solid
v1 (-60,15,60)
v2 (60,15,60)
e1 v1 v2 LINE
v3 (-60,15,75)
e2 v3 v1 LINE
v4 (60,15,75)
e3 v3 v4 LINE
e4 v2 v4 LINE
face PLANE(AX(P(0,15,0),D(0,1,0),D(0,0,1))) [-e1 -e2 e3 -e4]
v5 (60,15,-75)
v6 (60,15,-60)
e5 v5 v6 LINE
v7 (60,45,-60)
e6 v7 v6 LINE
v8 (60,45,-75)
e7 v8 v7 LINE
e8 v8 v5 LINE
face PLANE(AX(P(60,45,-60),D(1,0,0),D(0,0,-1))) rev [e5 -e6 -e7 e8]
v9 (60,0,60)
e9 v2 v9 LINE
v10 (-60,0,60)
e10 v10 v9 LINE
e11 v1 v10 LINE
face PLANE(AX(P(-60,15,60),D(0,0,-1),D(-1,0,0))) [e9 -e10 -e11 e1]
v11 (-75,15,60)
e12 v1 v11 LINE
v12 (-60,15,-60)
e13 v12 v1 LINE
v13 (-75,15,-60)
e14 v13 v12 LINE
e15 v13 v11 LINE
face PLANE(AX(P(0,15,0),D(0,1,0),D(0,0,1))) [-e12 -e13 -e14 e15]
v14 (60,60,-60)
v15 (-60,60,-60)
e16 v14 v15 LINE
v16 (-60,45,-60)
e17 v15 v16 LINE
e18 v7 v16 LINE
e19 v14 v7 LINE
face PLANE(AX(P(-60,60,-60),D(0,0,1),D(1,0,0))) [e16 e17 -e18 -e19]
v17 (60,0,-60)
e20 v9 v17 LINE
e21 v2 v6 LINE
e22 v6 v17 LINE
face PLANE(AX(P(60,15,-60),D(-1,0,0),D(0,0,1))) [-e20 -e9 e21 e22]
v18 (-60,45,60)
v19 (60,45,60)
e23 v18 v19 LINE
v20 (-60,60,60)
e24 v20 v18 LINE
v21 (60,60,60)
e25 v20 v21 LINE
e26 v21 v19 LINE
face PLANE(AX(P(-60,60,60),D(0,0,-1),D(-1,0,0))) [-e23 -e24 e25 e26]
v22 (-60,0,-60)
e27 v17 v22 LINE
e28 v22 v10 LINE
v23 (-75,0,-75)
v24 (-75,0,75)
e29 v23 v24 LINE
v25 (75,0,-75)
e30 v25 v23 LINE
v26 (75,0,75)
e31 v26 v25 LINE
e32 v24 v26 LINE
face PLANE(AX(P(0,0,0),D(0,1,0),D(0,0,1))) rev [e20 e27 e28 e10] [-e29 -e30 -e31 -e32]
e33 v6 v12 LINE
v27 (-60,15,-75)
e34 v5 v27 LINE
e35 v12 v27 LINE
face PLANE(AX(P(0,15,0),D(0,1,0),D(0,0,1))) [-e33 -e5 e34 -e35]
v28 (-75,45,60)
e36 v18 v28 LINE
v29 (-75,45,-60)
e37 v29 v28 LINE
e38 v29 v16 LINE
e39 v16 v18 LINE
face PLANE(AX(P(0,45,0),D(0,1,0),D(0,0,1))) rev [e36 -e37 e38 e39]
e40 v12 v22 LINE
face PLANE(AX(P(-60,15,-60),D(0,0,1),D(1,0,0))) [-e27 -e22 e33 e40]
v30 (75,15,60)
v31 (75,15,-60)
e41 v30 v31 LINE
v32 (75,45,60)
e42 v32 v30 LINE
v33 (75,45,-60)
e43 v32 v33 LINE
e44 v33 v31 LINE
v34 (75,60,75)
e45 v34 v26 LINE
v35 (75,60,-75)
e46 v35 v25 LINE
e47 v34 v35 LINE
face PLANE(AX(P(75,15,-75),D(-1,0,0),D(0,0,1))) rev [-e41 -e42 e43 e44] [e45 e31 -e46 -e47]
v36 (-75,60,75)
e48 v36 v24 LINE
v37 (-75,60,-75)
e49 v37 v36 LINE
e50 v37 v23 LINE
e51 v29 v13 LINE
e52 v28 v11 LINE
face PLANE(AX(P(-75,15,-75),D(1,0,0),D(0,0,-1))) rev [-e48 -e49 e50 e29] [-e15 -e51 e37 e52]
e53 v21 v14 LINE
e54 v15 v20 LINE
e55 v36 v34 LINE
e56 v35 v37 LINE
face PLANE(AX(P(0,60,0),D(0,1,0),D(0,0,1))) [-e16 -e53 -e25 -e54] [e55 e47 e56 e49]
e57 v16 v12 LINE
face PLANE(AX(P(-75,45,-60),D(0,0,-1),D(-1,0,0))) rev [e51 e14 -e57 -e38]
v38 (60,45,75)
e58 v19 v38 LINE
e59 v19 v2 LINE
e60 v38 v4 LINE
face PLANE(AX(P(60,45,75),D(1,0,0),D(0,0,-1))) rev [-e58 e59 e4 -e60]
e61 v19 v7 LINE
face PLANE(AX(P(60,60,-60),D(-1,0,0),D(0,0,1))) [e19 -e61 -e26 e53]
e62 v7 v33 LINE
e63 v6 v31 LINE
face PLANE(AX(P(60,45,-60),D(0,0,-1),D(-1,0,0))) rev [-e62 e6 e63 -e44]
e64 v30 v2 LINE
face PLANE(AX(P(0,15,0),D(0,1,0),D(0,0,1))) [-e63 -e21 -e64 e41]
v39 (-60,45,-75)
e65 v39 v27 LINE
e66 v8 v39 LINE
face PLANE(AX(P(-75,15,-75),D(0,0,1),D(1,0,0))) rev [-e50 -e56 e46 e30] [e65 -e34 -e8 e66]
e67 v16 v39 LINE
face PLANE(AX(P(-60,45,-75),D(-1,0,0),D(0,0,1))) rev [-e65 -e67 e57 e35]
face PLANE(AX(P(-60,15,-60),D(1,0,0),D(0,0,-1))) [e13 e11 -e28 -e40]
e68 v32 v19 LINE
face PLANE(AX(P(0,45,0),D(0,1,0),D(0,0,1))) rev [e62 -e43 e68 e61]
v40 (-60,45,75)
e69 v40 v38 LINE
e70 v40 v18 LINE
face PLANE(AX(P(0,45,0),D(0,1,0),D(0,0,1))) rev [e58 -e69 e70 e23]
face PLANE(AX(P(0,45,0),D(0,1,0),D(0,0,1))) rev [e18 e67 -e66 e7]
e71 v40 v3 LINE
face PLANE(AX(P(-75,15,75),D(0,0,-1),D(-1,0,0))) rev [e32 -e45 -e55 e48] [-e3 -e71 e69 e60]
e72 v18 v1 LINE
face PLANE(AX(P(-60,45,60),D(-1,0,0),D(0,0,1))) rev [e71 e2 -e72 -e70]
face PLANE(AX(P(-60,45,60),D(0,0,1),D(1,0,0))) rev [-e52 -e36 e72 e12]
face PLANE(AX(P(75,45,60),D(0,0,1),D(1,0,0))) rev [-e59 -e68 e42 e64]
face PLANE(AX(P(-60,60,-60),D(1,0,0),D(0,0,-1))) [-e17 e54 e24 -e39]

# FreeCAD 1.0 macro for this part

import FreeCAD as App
import Part
import Sketcher

V = App.Vector
Q = App.Units.Quantity


def add_polygon(sketch, points):
    """Adds a closed chain of lines whose ends are joined by coincident constraints."""
    first, n = sketch.GeometryCount, len(points)
    for a, b in zip(points, points[1:] + points[:1]):
        sketch.addGeometry(Part.LineSegment(App.Vector(*a, 0), App.Vector(*b, 0)), False)
    for i in range(n):
        sketch.addConstraint(Sketcher.Constraint("Coincident", first + i, 2, first + (i + 1) % n, 1))

doc = App.newDocument("Part")
body = doc.addObject("PartDesign::Body", "Body")

# Sketch on XZ plane
sketch1 = doc.addObject("Sketcher::SketchObject", "Sketch")
body.addObject(sketch1)
sketch1.AttachmentSupport = (doc.XZ_Plane, [""])
sketch1.MapMode = "FlatFace"
add_polygon(sketch1, [(-75, -75), (-75, 75), (75, 75), (75, -75)])  # lines 0-3
add_polygon(sketch1, [(60, 60), (-60, 60), (-60, -60), (60, -60)])  # lines 4-7
sketch1.addConstraint(Sketcher.Constraint("Vertical", 0))
sketch1.addConstraint(Sketcher.Constraint("Horizontal", 1))
sketch1.addConstraint(Sketcher.Constraint("Vertical", 2))
sketch1.addConstraint(Sketcher.Constraint("Horizontal", 3))
sketch1.addConstraint(Sketcher.Constraint("Horizontal", 4))
sketch1.addConstraint(Sketcher.Constraint("Vertical", 5))
sketch1.addConstraint(Sketcher.Constraint("Horizontal", 6))
sketch1.addConstraint(Sketcher.Constraint("Vertical", 7))
sketch1.addConstraint(Sketcher.Constraint("Symmetric", 0, 2, 2, 2, -1, 1))
sketch1.addConstraint(Sketcher.Constraint("Symmetric", 4, 2, 6, 2, -1, 1))
sketch1.addConstraint(Sketcher.Constraint("Equal", 3, 0))
sketch1.addConstraint(Sketcher.Constraint("Equal", 6, 5))
sketch1.addConstraint(Sketcher.Constraint("DistanceX", 1, 1, 1, 2, Q("150 mm")))
sketch1.addConstraint(Sketcher.Constraint("DistanceX", 4, 2, 4, 1, Q("120 mm")))
pad1 = doc.addObject("PartDesign::Pad", "Pad")
body.addObject(pad1)
pad1.Profile = sketch1
pad1.Length = 15
pad1.Reversed = True

# Sketch on XZ plane
sketch2 = doc.addObject("Sketcher::SketchObject", "Sketch001")
body.addObject(sketch2)
sketch2.AttachmentSupport = (doc.XZ_Plane, [""])
sketch2.MapMode = "FlatFace"
sketch2.AttachmentOffset = App.Placement(V(0, 0, -15), App.Rotation())
add_polygon(sketch2, [(-75, -75), (-75, -60), (-60, -60), (-60, -75)])  # lines 0-3
add_polygon(sketch2, [(60, -75), (60, -60), (75, -60), (75, -75)])  # lines 4-7
add_polygon(sketch2, [(60, 60), (60, 75), (75, 75), (75, 60)])  # lines 8-11
add_polygon(sketch2, [(-75, 60), (-75, 75), (-60, 75), (-60, 60)])  # lines 12-15
sketch2.addConstraint(Sketcher.Constraint("Vertical", 0))
sketch2.addConstraint(Sketcher.Constraint("Horizontal", 1))
sketch2.addConstraint(Sketcher.Constraint("Vertical", 2))
sketch2.addConstraint(Sketcher.Constraint("Horizontal", 3))
sketch2.addConstraint(Sketcher.Constraint("Vertical", 4))
sketch2.addConstraint(Sketcher.Constraint("Horizontal", 5))
sketch2.addConstraint(Sketcher.Constraint("Vertical", 6))
sketch2.addConstraint(Sketcher.Constraint("Horizontal", 7))
sketch2.addConstraint(Sketcher.Constraint("Vertical", 8))
sketch2.addConstraint(Sketcher.Constraint("Horizontal", 9))
sketch2.addConstraint(Sketcher.Constraint("Vertical", 10))
sketch2.addConstraint(Sketcher.Constraint("Horizontal", 11))
sketch2.addConstraint(Sketcher.Constraint("Vertical", 12))
sketch2.addConstraint(Sketcher.Constraint("Horizontal", 13))
sketch2.addConstraint(Sketcher.Constraint("Vertical", 14))
sketch2.addConstraint(Sketcher.Constraint("Horizontal", 15))
sketch2.addConstraint(Sketcher.Constraint("Symmetric", 2, 2, 8, 2, -1, 1))
sketch2.addConstraint(Sketcher.Constraint("Symmetric", 0, 2, 10, 2, -1, 1))
sketch2.addConstraint(Sketcher.Constraint("Symmetric", 6, 2, 12, 2, -1, 1))
sketch2.addConstraint(Sketcher.Constraint("Symmetric", 4, 2, 14, 2, -1, 1))
sketch2.addConstraint(Sketcher.Constraint("Symmetric", 1, 2, 4, 2, -2))
sketch2.addConstraint(Sketcher.Constraint("Symmetric", 3, 2, 6, 2, -2))
sketch2.addConstraint(Sketcher.Constraint("Equal", 15, 0))
sketch2.addConstraint(Sketcher.Constraint("DistanceX", 1, 1, 1, 2, Q("15 mm")))
sketch2.addConstraint(Sketcher.Constraint("DistanceX", 0, 2, -1, 1, Q("75 mm")))
sketch2.addConstraint(Sketcher.Constraint("DistanceY", 0, 2, -1, 1, Q("60 mm")))
pad2 = doc.addObject("PartDesign::Pad", "Pad001")
body.addObject(pad2)
pad2.Profile = sketch2
pad2.Length = 30
pad2.Reversed = True

# Sketch on XZ plane
sketch3 = doc.addObject("Sketcher::SketchObject", "Sketch002")
body.addObject(sketch3)
sketch3.AttachmentSupport = (doc.XZ_Plane, [""])
sketch3.MapMode = "FlatFace"
sketch3.AttachmentOffset = App.Placement(V(0, 0, -45), App.Rotation())
add_polygon(sketch3, [(-75, -75), (-75, 75), (75, 75), (75, -75)])  # lines 0-3
add_polygon(sketch3, [(60, 60), (-60, 60), (-60, -60), (60, -60)])  # lines 4-7
sketch3.addConstraint(Sketcher.Constraint("Vertical", 0))
sketch3.addConstraint(Sketcher.Constraint("Horizontal", 1))
sketch3.addConstraint(Sketcher.Constraint("Vertical", 2))
sketch3.addConstraint(Sketcher.Constraint("Horizontal", 3))
sketch3.addConstraint(Sketcher.Constraint("Horizontal", 4))
sketch3.addConstraint(Sketcher.Constraint("Vertical", 5))
sketch3.addConstraint(Sketcher.Constraint("Horizontal", 6))
sketch3.addConstraint(Sketcher.Constraint("Vertical", 7))
sketch3.addConstraint(Sketcher.Constraint("Symmetric", 0, 2, 2, 2, -1, 1))
sketch3.addConstraint(Sketcher.Constraint("Symmetric", 4, 2, 6, 2, -1, 1))
sketch3.addConstraint(Sketcher.Constraint("Equal", 3, 0))
sketch3.addConstraint(Sketcher.Constraint("Equal", 6, 5))
sketch3.addConstraint(Sketcher.Constraint("DistanceX", 1, 1, 1, 2, Q("150 mm")))
sketch3.addConstraint(Sketcher.Constraint("DistanceX", 4, 2, 4, 1, Q("120 mm")))
pad3 = doc.addObject("PartDesign::Pad", "Pad002")
body.addObject(pad3)
pad3.Profile = sketch3
pad3.Length = 15
pad3.Reversed = True

doc.recompute()
